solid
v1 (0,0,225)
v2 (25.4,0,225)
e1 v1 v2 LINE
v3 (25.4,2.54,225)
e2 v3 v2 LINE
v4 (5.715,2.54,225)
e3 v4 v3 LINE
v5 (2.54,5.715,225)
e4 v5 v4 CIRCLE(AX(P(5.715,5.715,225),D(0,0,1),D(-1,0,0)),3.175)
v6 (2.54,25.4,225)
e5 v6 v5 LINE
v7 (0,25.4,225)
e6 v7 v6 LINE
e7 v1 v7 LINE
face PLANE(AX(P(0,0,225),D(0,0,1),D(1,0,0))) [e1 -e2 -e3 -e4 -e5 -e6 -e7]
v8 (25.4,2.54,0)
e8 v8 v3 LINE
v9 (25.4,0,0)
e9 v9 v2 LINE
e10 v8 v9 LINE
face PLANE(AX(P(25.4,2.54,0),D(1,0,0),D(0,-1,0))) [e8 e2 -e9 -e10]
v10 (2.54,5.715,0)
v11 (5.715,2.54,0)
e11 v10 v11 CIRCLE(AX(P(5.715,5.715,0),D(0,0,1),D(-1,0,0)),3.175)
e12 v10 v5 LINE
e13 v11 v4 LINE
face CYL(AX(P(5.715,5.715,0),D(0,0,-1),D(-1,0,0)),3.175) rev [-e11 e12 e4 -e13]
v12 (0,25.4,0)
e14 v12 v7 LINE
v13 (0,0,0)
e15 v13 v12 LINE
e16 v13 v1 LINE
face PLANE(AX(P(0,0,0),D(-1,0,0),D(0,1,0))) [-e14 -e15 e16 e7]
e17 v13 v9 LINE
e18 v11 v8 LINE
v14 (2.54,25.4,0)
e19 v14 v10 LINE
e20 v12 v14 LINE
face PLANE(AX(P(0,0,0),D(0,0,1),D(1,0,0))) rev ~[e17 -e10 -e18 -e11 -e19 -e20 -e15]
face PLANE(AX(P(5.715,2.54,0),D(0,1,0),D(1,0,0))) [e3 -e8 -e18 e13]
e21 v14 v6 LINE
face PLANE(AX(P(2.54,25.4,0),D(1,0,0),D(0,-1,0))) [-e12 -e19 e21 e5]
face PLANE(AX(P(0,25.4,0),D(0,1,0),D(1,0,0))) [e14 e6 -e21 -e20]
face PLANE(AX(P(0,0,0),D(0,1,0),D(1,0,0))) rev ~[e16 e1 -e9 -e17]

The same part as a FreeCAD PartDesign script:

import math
import FreeCAD as App
import Part
import Sketcher
from FreeCAD import Vector
Q = App.Units.Quantity

doc = App.newDocument("Part")
body = doc.addObject("PartDesign::Body", "Body")

# Sketch on XY plane
sketch1 = doc.addObject("Sketcher::SketchObject", "Sketch")
body.addObject(sketch1)
sketch1.AttachmentSupport = (doc.XY_Plane, [""])
sketch1.MapMode = "FlatFace"
sketch1.addGeometry([
    Part.LineSegment(Vector(0, 25.4, 0), Vector(0, 0, 0)),  # 0
    Part.LineSegment(Vector(0, 0, 0), Vector(25.4, 0, 0)),  # 1
    Part.LineSegment(Vector(25.4, 0, 0), Vector(25.4, 2.54, 0)),  # 2
    Part.LineSegment(Vector(25.4, 2.54, 0), Vector(5.715, 2.54, 0)),  # 3
    Part.ArcOfCircle(Part.Circle(Vector(5.715, 5.715, 0), Vector(0, 0, 1), 3.175), math.radians(180), math.radians(270)),  # 4
    Part.LineSegment(Vector(2.54, 5.715, 0), Vector(2.54, 25.4, 0)),  # 5
    Part.LineSegment(Vector(2.54, 25.4, 0), Vector(0, 25.4, 0)),  # 6
], False)
sketch1.addConstraint([
    Sketcher.Constraint("Coincident", 0, 2, 1, 1),
    Sketcher.Constraint("Coincident", 1, 2, 2, 1),
    Sketcher.Constraint("Coincident", 2, 2, 3, 1),
    Sketcher.Constraint("Tangent", 3, 2, 4, 2),
    Sketcher.Constraint("Tangent", 4, 1, 5, 1),
    Sketcher.Constraint("Coincident", 5, 2, 6, 1),
    Sketcher.Constraint("Coincident", 6, 2, 0, 1),
    Sketcher.Constraint("Vertical", 0),
    Sketcher.Constraint("Horizontal", 1),
    Sketcher.Constraint("Vertical", 2),
    Sketcher.Constraint("Horizontal", 3),
    Sketcher.Constraint("Vertical", 5),
    Sketcher.Constraint("Horizontal", 6),
    Sketcher.Constraint("Coincident", 0, 2, -1, 1),
    Sketcher.Constraint("Equal", 1, 0),
    Sketcher.Constraint("Equal", 6, 2),
    Sketcher.Constraint("DistanceX", 1, 1, 1, 2, Q("1 in")),
    Sketcher.Constraint("DistanceX", 6, 2, 6, 1, Q("0.1 in")),
    Sketcher.Constraint("Radius", 4, Q("0.125 in")),
])
pad1 = doc.addObject("PartDesign::Pad", "Pad")
body.addObject(pad1)
pad1.Profile = sketch1
pad1.Length = 225

doc.recompute()
